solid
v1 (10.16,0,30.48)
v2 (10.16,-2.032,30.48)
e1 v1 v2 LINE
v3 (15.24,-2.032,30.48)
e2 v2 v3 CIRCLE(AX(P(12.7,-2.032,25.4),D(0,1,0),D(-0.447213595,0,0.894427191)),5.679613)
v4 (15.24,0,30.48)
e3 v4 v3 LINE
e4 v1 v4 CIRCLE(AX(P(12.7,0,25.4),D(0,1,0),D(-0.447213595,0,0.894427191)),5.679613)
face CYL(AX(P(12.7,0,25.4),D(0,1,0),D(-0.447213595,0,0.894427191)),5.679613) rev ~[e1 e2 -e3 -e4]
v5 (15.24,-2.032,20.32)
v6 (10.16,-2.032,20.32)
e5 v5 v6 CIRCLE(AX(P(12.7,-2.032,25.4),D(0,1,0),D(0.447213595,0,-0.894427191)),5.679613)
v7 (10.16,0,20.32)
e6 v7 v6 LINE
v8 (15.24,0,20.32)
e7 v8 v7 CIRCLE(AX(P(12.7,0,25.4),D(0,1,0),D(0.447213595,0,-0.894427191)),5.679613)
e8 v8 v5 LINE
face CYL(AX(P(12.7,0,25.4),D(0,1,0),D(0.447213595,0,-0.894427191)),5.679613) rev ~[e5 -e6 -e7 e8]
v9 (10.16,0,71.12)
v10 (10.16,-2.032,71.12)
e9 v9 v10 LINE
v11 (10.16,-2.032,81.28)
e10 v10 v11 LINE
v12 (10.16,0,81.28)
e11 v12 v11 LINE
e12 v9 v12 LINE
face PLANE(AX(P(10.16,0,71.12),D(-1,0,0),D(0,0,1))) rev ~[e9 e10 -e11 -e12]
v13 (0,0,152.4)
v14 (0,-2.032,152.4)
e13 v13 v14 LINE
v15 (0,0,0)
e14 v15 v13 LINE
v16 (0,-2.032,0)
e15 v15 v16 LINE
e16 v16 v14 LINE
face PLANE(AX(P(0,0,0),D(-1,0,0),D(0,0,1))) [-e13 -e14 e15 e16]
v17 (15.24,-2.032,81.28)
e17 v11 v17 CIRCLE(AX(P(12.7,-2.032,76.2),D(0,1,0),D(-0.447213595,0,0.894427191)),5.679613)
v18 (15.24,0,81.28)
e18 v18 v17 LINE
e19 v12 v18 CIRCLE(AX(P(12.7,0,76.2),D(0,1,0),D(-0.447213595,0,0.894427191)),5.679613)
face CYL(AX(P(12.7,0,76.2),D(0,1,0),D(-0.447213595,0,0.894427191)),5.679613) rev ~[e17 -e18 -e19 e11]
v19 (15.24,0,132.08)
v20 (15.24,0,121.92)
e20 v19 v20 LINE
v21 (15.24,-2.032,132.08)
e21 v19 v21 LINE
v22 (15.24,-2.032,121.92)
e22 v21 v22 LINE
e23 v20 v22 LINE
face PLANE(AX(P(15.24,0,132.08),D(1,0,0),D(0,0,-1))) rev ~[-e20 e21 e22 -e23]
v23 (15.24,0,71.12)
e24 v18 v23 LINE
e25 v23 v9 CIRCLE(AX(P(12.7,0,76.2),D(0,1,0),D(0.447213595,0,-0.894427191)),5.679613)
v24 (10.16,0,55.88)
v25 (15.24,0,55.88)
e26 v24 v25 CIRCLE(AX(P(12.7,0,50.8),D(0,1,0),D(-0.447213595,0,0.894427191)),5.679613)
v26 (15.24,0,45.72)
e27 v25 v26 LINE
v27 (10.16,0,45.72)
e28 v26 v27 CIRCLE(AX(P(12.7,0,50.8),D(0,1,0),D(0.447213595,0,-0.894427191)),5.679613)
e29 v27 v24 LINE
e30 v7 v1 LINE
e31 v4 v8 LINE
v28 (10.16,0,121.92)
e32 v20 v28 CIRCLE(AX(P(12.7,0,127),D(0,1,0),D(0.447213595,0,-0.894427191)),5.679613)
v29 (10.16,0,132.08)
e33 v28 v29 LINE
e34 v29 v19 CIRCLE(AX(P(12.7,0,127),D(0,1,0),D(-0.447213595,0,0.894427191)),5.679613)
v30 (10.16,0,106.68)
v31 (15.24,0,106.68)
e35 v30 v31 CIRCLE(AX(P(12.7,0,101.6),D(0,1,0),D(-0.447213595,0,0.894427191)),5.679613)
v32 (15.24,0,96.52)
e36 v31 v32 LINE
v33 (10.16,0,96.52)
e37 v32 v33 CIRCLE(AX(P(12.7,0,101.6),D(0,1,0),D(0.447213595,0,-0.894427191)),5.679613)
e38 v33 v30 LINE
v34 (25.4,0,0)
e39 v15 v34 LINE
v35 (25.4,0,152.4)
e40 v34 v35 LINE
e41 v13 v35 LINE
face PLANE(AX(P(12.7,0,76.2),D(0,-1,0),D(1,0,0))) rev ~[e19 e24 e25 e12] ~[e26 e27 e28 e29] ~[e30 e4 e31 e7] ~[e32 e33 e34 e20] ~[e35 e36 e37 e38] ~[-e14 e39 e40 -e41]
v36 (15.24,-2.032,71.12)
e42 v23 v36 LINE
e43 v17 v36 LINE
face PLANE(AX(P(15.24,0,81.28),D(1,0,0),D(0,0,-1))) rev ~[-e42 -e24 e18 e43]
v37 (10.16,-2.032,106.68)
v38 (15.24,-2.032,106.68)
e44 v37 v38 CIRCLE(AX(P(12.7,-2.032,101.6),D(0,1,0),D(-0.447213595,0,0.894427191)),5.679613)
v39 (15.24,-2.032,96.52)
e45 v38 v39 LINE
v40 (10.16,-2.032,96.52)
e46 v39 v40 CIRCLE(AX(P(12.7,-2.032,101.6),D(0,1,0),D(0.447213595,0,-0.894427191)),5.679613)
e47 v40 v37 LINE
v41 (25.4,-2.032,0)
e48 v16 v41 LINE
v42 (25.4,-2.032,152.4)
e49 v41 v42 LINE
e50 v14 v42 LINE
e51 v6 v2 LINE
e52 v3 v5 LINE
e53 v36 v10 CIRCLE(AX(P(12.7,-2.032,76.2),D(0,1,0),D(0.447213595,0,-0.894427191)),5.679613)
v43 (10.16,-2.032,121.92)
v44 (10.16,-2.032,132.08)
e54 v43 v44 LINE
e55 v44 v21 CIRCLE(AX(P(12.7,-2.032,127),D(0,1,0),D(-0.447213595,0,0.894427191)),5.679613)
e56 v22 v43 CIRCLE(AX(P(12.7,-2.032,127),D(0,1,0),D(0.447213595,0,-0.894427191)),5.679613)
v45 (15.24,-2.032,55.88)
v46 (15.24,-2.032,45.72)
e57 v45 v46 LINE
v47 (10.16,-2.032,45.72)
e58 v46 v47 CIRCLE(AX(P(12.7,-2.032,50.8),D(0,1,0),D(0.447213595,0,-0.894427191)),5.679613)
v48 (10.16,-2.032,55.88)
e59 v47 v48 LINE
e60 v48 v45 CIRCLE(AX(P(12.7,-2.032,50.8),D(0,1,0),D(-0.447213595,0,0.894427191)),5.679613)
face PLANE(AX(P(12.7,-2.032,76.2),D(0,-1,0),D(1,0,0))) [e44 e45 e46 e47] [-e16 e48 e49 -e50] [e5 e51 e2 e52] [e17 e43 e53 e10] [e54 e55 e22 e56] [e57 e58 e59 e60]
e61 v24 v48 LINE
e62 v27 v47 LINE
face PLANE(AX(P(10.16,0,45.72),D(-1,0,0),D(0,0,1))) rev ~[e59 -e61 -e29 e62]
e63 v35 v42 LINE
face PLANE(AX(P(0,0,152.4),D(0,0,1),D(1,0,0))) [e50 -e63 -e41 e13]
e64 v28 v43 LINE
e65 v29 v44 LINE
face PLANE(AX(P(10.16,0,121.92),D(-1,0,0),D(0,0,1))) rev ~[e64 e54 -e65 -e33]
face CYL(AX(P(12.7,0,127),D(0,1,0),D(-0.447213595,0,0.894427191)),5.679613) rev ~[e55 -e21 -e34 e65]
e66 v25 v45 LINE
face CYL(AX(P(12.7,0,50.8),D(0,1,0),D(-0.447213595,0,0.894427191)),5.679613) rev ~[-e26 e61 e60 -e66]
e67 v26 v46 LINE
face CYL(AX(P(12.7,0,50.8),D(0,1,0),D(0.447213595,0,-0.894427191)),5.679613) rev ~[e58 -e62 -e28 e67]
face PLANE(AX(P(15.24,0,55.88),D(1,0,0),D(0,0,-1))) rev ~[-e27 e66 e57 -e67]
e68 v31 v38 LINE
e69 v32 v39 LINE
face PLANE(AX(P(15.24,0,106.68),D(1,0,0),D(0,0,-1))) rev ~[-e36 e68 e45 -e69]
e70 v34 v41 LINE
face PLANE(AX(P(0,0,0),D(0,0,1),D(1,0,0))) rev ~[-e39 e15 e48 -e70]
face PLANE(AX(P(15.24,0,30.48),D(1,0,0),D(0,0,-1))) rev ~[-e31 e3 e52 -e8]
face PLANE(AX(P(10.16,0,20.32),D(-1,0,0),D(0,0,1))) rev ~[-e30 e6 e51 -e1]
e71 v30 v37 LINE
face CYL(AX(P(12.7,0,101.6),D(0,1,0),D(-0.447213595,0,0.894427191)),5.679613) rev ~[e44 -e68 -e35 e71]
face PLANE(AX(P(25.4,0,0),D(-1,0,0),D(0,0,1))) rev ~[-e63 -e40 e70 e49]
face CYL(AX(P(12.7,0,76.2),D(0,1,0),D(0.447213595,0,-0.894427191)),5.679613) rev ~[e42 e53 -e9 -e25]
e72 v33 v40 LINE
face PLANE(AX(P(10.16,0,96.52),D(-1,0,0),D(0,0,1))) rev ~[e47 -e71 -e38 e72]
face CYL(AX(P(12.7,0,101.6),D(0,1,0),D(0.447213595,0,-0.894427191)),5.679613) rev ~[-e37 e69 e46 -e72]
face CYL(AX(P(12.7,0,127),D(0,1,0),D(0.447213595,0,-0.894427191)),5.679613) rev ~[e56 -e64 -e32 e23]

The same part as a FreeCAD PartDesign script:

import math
import FreeCAD as App
import Part
import Sketcher

V = App.Vector
Q = App.Units.Quantity

doc = App.newDocument("Part")
params = doc.addObject("Spreadsheet::Sheet", "Params")
for row, (alias, value) in enumerate([
    ("sketch1_width", "1 in"),
    ("sketch1_height", "6 in"),
    ("sketch1_height2", "0.4 in"),
    ("pad1_length", "0.08 in"),
], start=1):
    params.set(f"A{row}", alias)
    params.set(f"B{row}", "=" + value)
    params.setAlias(f"B{row}", alias)

body = doc.addObject("PartDesign::Body", "Body")

# Sketch on XZ plane
sketch1 = doc.addObject("Sketcher::SketchObject", "Sketch")
body.addObject(sketch1)
sketch1.AttachmentSupport = (doc.XZ_Plane, [""])
sketch1.MapMode = "FlatFace"
sketch1.addGeometry([
    Part.LineSegment(V(0, 152, 0), V(0, 0, 0)),  # 0
    Part.LineSegment(V(0, 0, 0), V(25, 0, 0)),  # 1
    Part.LineSegment(V(25, 0, 0), V(25, 152, 0)),  # 2
    Part.LineSegment(V(25, 152, 0), V(0, 152, 0)),  # 3
    Part.LineSegment(V(10, 20, 0), V(10, 30, 0)),  # 4
    Part.ArcOfCircle(Part.Circle(V(13, 25, 0), V(0, 0, 1), 6), math.radians(63), math.radians(117)),  # 5
    Part.LineSegment(V(15, 30, 0), V(15, 20, 0)),  # 6
    Part.ArcOfCircle(Part.Circle(V(13, 25, 0), V(0, 0, 1), 6), math.radians(-117), math.radians(-63)),  # 7
    Part.LineSegment(V(10, 46, 0), V(10, 56, 0)),  # 8
    Part.ArcOfCircle(Part.Circle(V(13, 51, 0), V(0, 0, 1), 6), math.radians(63), math.radians(117)),  # 9
    Part.LineSegment(V(15, 56, 0), V(15, 46, 0)),  # 10
    Part.ArcOfCircle(Part.Circle(V(13, 51, 0), V(0, 0, 1), 6), math.radians(-117), math.radians(-63)),  # 11
    Part.LineSegment(V(10, 71, 0), V(10, 81, 0)),  # 12
    Part.ArcOfCircle(Part.Circle(V(13, 76, 0), V(0, 0, 1), 6), math.radians(63), math.radians(117)),  # 13
    Part.LineSegment(V(15, 81, 0), V(15, 71, 0)),  # 14
    Part.ArcOfCircle(Part.Circle(V(13, 76, 0), V(0, 0, 1), 6), math.radians(-117), math.radians(-63)),  # 15
    Part.LineSegment(V(10, 97, 0), V(10, 107, 0)),  # 16
    Part.ArcOfCircle(Part.Circle(V(13, 102, 0), V(0, 0, 1), 6), math.radians(63), math.radians(117)),  # 17
    Part.LineSegment(V(15, 107, 0), V(15, 97, 0)),  # 18
    Part.ArcOfCircle(Part.Circle(V(13, 102, 0), V(0, 0, 1), 6), math.radians(-117), math.radians(-63)),  # 19
    Part.LineSegment(V(10, 122, 0), V(10, 132, 0)),  # 20
    Part.ArcOfCircle(Part.Circle(V(13, 127, 0), V(0, 0, 1), 6), math.radians(63), math.radians(117)),  # 21
    Part.LineSegment(V(15, 132, 0), V(15, 122, 0)),  # 22
    Part.ArcOfCircle(Part.Circle(V(13, 127, 0), V(0, 0, 1), 6), math.radians(-117), math.radians(-63)),  # 23
], False)
sketch1.addConstraint([
    Sketcher.Constraint("Coincident", 0, 2, 1, 1),
    Sketcher.Constraint("Coincident", 1, 2, 2, 1),
    Sketcher.Constraint("Coincident", 2, 2, 3, 1),
    Sketcher.Constraint("Coincident", 3, 2, 0, 1),
    Sketcher.Constraint("Coincident", 4, 2, 5, 2),
    Sketcher.Constraint("Coincident", 5, 1, 6, 1),
    Sketcher.Constraint("Coincident", 6, 2, 7, 2),
    Sketcher.Constraint("Coincident", 7, 1, 4, 1),
    Sketcher.Constraint("Coincident", 8, 2, 9, 2),
    Sketcher.Constraint("Coincident", 9, 1, 10, 1),
    Sketcher.Constraint("Coincident", 10, 2, 11, 2),
    Sketcher.Constraint("Coincident", 11, 1, 8, 1),
    Sketcher.Constraint("Coincident", 12, 2, 13, 2),
    Sketcher.Constraint("Coincident", 13, 1, 14, 1),
    Sketcher.Constraint("Coincident", 14, 2, 15, 2),
    Sketcher.Constraint("Coincident", 15, 1, 12, 1),
    Sketcher.Constraint("Coincident", 16, 2, 17, 2),
    Sketcher.Constraint("Coincident", 17, 1, 18, 1),
    Sketcher.Constraint("Coincident", 18, 2, 19, 2),
    Sketcher.Constraint("Coincident", 19, 1, 16, 1),
    Sketcher.Constraint("Coincident", 20, 2, 21, 2),
    Sketcher.Constraint("Coincident", 21, 1, 22, 1),
    Sketcher.Constraint("Coincident", 22, 2, 23, 2),
    Sketcher.Constraint("Coincident", 23, 1, 20, 1),
    Sketcher.Constraint("Vertical", 0),
    Sketcher.Constraint("Horizontal", 1),
    Sketcher.Constraint("Vertical", 2),
    Sketcher.Constraint("Horizontal", 3),
    Sketcher.Constraint("Vertical", 4),
    Sketcher.Constraint("Vertical", 6),
    Sketcher.Constraint("Vertical", 8),
    Sketcher.Constraint("Vertical", 10),
    Sketcher.Constraint("Vertical", 12),
    Sketcher.Constraint("Vertical", 14),
    Sketcher.Constraint("Vertical", 16),
    Sketcher.Constraint("Vertical", 18),
    Sketcher.Constraint("Vertical", 20),
    Sketcher.Constraint("Vertical", 22),
    Sketcher.Constraint("Coincident", 0, 2, -1, 1),
    Sketcher.Constraint("Coincident", 7, 3, 5, 3),
    Sketcher.Constraint("Coincident", 11, 3, 9, 3),
    Sketcher.Constraint("Coincident", 15, 3, 13, 3),
    Sketcher.Constraint("Coincident", 19, 3, 17, 3),
    Sketcher.Constraint("Coincident", 23, 3, 21, 3),
    Sketcher.Constraint("Equal", 5, 7),
    Sketcher.Constraint("Equal", 7, 9),
    Sketcher.Constraint("Equal", 9, 11),
    Sketcher.Constraint("Equal", 11, 13),
    Sketcher.Constraint("Equal", 13, 15),
    Sketcher.Constraint("Equal", 15, 17),
    Sketcher.Constraint("Equal", 17, 19),
    Sketcher.Constraint("Equal", 19, 21),
    Sketcher.Constraint("Equal", 21, 23),
    Sketcher.Constraint("Horizontal", 4, 2, 5, 1),
    Sketcher.Constraint("Horizontal", 8, 2, 9, 1),
    Sketcher.Constraint("Horizontal", 12, 2, 13, 1),
    Sketcher.Constraint("Horizontal", 16, 2, 17, 1),
    Sketcher.Constraint("Horizontal", 20, 2, 21, 1),
    Sketcher.Constraint("Vertical", 7, 3, 9, 3),
    Sketcher.Constraint("Vertical", 11, 3, 13, 3),
    Sketcher.Constraint("Vertical", 15, 3, 17, 3),
    Sketcher.Constraint("Vertical", 19, 3, 21, 3),
    Sketcher.Constraint("Vertical", 7, 1, 8, 2),
    Sketcher.Constraint("Vertical", 11, 1, 12, 2),
    Sketcher.Constraint("Vertical", 15, 1, 16, 2),
    Sketcher.Constraint("Vertical", 19, 1, 20, 2),
    Sketcher.Constraint("DistanceX", 1, 1, 1, 2, Q("1 in")),
    Sketcher.Constraint("DistanceY", 0, 2, 0, 1, Q("6 in")),
    Sketcher.Constraint("DistanceY", 4, 1, 4, 2, Q("0.4 in")),
    Sketcher.Constraint("DistanceY", -1, 1, 5, 3, Q("1 in")),
    Sketcher.Constraint("DistanceY", -1, 1, 9, 3, Q("2 in")),
    Sketcher.Constraint("DistanceY", -1, 1, 13, 3, Q("3 in")),
    Sketcher.Constraint("DistanceY", -1, 1, 17, 3, Q("4 in")),
    Sketcher.Constraint("DistanceY", -1, 1, 21, 3, Q("5 in")),
    Sketcher.Constraint("DistanceX", -1, 1, 5, 3, Q("0.5 in")),
    Sketcher.Constraint("DistanceX", -1, 1, 4, 2, Q("0.4 in")),
])
sketch1.setExpression("Constraints[66]", "Params.sketch1_width")
sketch1.setExpression("Constraints[67]", "Params.sketch1_height")
sketch1.setExpression("Constraints[68]", "Params.sketch1_height2")
pad1 = doc.addObject("PartDesign::Pad", "Pad")
body.addObject(pad1)
pad1.Profile = sketch1
pad1.setExpression("Length", "Params.pad1_length")

doc.recompute()
